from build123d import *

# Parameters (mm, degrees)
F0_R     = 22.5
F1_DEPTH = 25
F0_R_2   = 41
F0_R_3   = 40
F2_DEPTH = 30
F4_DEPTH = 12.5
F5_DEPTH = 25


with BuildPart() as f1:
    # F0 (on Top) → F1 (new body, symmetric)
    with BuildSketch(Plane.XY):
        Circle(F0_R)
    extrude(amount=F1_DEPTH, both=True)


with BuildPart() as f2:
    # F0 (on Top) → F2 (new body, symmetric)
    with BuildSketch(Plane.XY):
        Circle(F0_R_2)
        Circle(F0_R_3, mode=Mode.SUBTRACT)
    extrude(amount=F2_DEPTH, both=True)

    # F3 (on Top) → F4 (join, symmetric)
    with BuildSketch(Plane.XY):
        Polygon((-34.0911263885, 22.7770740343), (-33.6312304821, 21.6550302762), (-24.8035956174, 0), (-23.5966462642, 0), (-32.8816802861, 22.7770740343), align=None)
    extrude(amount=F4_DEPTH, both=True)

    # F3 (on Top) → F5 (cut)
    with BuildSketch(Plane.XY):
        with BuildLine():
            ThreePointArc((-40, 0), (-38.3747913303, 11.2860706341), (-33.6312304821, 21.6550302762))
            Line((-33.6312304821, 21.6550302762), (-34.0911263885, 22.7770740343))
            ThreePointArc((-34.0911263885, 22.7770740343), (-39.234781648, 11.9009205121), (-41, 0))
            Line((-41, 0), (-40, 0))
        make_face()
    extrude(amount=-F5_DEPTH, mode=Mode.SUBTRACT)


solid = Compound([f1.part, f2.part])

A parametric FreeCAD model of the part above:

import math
import FreeCAD as App
import Part
import Sketcher

V = App.Vector
Q = App.Units.Quantity


def add_polygon(sketch, points):
    """Adds a closed chain of lines whose ends are joined by coincident constraints."""
    first, n = sketch.GeometryCount, len(points)
    for a, b in zip(points, points[1:] + points[:1]):
        sketch.addGeometry(Part.LineSegment(App.Vector(*a, 0), App.Vector(*b, 0)), False)
    for i in range(n):
        sketch.addConstraint(Sketcher.Constraint("Coincident", first + i, 2, first + (i + 1) % n, 1))

doc = App.newDocument("Part")
body = doc.addObject("PartDesign::Body", "Body")

# Sketch on XY plane
sketch1 = body.newObject("Sketcher::SketchObject", "Sketch")
sketch1.AttachmentSupport = (doc.getObject("XY_Plane"), [""])
sketch1.MapMode = "FlatFace"
sketch1.addGeometry(Part.Circle(V(0, 0, 0), V(0, 0, 1), 22.5), False)
sketch1.addConstraint(Sketcher.Constraint("Coincident", 0, 3, -1, 1))
sketch1.addConstraint(Sketcher.Constraint("Diameter", 0, Q("45 mm")))
pad1 = body.newObject("PartDesign::Pad", "Pad")
pad1.Profile = sketch1
pad1.Length = 50
pad1.Midplane = True
body2 = doc.addObject("PartDesign::Body", "Body001")

# Sketch on XY plane
sketch2 = body2.newObject("Sketcher::SketchObject", "Sketch001")
sketch2.AttachmentSupport = (doc.getObject("XY_Plane001"), [""])
sketch2.MapMode = "FlatFace"
sketch2.addGeometry(Part.Circle(V(0, 0, 0), V(0, 0, 1), 41), False)
sketch2.addGeometry(Part.Circle(V(0, 0, 0), V(0, 0, 1), 40), False)
sketch2.addConstraint(Sketcher.Constraint("Coincident", 0, 3, -1, 1))
sketch2.addConstraint(Sketcher.Constraint("Coincident", 1, 3, -1, 1))
sketch2.addConstraint(Sketcher.Constraint("Diameter", 0, Q("82 mm")))
sketch2.addConstraint(Sketcher.Constraint("Diameter", 1, Q("80 mm")))
pad2 = body2.newObject("PartDesign::Pad", "Pad001")
pad2.Profile = sketch2
pad2.Length = 60
pad2.Midplane = True

# Sketch on XY plane
sketch3 = body2.newObject("Sketcher::SketchObject", "Sketch002")
sketch3.AttachmentSupport = (doc.getObject("XY_Plane001"), [""])
sketch3.MapMode = "FlatFace"
add_polygon(sketch3, [(-34.091126, 22.777074), (-33.63123, 21.65503), (-24.803596, 0), (-23.596646, 0), (-32.88168, 22.777074)])  # lines 0-4
sketch3.addConstraint(Sketcher.Constraint("Horizontal", 2))
sketch3.addConstraint(Sketcher.Constraint("Horizontal", 4))
sketch3.addConstraint(Sketcher.Constraint("PointOnObject", 1, 2, -1))
sketch3.addConstraint(Sketcher.Constraint("Parallel", 1, 3))
sketch3.addConstraint(Sketcher.Constraint("DistanceX", 2, 1, 2, 2, Q("1.206949 mm")))
sketch3.addConstraint(Sketcher.Constraint("Distance", 3, Q("24.596889 mm")))
sketch3.addConstraint(Sketcher.Constraint("DistanceX", 4, 2, 4, 1, Q("1.209446 mm")))
sketch3.addConstraint(Sketcher.Constraint("DistanceX", 0, 2, -1, 1, Q("33.63123 mm")))
sketch3.addConstraint(Sketcher.Constraint("DistanceY", -1, 1, 0, 2, Q("21.65503 mm")))
sketch3.addConstraint(Sketcher.Constraint("DistanceX", 3, 2, -1, 1, Q("32.88168 mm")))
pad3 = body2.newObject("PartDesign::Pad", "Pad002")
pad3.Profile = sketch3
pad3.Length = 25
pad3.Midplane = True

# Sketch on XY plane
sketch4 = body2.newObject("Sketcher::SketchObject", "Sketch003")
sketch4.AttachmentSupport = (doc.getObject("XY_Plane001"), [""])
sketch4.MapMode = "FlatFace"
sketch4.addGeometry(Part.ArcOfCircle(Part.Circle(V(0, 0, 0), V(0, 0, 1), 40), math.radians(147.222658), math.radians(180)), False)
sketch4.addGeometry(Part.LineSegment(V(-33.63123, 21.65503, 0), V(-34.091126, 22.777074, 0)), False)
sketch4.addGeometry(Part.ArcOfCircle(Part.Circle(V(0, 0, 0), V(0, 0, 1), 41), math.radians(146.252194), math.radians(180)), False)
sketch4.addGeometry(Part.LineSegment(V(-41, 0, 0), V(-40, 0, 0)), False)
sketch4.addConstraint(Sketcher.Constraint("Coincident", 0, 1, 1, 1))
sketch4.addConstraint(Sketcher.Constraint("Coincident", 1, 2, 2, 1))
sketch4.addConstraint(Sketcher.Constraint("Coincident", 2, 2, 3, 1))
sketch4.addConstraint(Sketcher.Constraint("Coincident", 3, 2, 0, 2))
sketch4.addConstraint(Sketcher.Constraint("Horizontal", 3))
sketch4.addConstraint(Sketcher.Constraint("Coincident", 0, 3, -1, 1))
sketch4.addConstraint(Sketcher.Constraint("Coincident", 2, 3, -1, 1))
sketch4.addConstraint(Sketcher.Constraint("PointOnObject", 2, 2, -1))
sketch4.addConstraint(Sketcher.Constraint("Radius", 0, Q("40 mm")))
sketch4.addConstraint(Sketcher.Constraint("Radius", 2, Q("41 mm")))
sketch4.addConstraint(Sketcher.Constraint("DistanceX", 0, 1, -1, 1, Q("33.63123 mm")))
sketch4.addConstraint(Sketcher.Constraint("Distance", 1, Q("1.212636 mm")))
pocket1 = body2.newObject("PartDesign::Pocket", "Pocket")
pocket1.Profile = sketch4
pocket1.Length = 25

doc.recompute()
